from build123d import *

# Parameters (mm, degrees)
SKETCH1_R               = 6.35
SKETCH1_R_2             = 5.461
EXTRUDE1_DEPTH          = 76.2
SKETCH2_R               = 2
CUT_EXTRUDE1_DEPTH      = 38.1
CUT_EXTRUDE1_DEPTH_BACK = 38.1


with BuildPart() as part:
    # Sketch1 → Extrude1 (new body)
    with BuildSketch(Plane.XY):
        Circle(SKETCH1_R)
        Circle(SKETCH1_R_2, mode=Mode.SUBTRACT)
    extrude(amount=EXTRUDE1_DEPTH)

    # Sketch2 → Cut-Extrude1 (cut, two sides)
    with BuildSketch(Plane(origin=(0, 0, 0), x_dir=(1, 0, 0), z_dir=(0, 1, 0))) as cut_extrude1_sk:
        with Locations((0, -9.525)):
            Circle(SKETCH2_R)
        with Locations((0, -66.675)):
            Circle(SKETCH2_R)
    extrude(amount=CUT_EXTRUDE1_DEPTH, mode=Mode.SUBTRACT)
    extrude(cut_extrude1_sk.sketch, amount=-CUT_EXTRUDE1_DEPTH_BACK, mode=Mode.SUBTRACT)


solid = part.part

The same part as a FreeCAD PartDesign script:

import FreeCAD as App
import Part
import Sketcher

V = App.Vector
Q = App.Units.Quantity

doc = App.newDocument("Part")
body = doc.addObject("PartDesign::Body", "Body")

# Sketch on XY plane
sketch1 = body.newObject("Sketcher::SketchObject", "Sketch")
sketch1.AttachmentSupport = (doc.getObject("XY_Plane"), [""])
sketch1.MapMode = "FlatFace"
sketch1.addGeometry(Part.Circle(V(0, 0, 0), V(0, 0, 1), 6.35), False)
sketch1.addGeometry(Part.Circle(V(0, 0, 0), V(0, 0, 1), 5.461), False)
sketch1.addConstraint(Sketcher.Constraint("Coincident", 0, 3, -1, 1))
sketch1.addConstraint(Sketcher.Constraint("Coincident", 1, 3, -1, 1))
sketch1.addConstraint(Sketcher.Constraint("Diameter", 0, Q("0.5 in")))
sketch1.addConstraint(Sketcher.Constraint("Diameter", 1, Q("0.43 in")))
pad1 = body.newObject("PartDesign::Pad", "Pad")
pad1.Profile = sketch1
pad1.Length = Q("3 in")

# Sketch on XZ plane
sketch2 = body.newObject("Sketcher::SketchObject", "Sketch001")
sketch2.AttachmentSupport = (doc.getObject("XZ_Plane"), [""])
sketch2.MapMode = "FlatFace"
sketch2.addGeometry(Part.Circle(V(0, 9.525, 0), V(0, 0, 1), 2), False)
sketch2.addGeometry(Part.Circle(V(0, 66.675, 0), V(0, 0, 1), 2), False)
sketch2.addConstraint(Sketcher.Constraint("Equal", 0, 1))
sketch2.addConstraint(Sketcher.Constraint("PointOnObject", 0, 3, -2))
sketch2.addConstraint(Sketcher.Constraint("PointOnObject", 1, 3, -2))
sketch2.addConstraint(Sketcher.Constraint("Diameter", 0, Q("4 mm")))
sketch2.addConstraint(Sketcher.Constraint("DistanceY", 0, 3, 1, 3, Q("2.25 in")))
sketch2.addConstraint(Sketcher.Constraint("DistanceY", -1, 1, 0, 3, Q("0.375 in")))
pocket1 = body.newObject("PartDesign::Pocket", "Pocket")
pocket1.Profile = sketch2
pocket1.Type = "ThroughAll"
pocket1.Midplane = True

doc.recompute()
